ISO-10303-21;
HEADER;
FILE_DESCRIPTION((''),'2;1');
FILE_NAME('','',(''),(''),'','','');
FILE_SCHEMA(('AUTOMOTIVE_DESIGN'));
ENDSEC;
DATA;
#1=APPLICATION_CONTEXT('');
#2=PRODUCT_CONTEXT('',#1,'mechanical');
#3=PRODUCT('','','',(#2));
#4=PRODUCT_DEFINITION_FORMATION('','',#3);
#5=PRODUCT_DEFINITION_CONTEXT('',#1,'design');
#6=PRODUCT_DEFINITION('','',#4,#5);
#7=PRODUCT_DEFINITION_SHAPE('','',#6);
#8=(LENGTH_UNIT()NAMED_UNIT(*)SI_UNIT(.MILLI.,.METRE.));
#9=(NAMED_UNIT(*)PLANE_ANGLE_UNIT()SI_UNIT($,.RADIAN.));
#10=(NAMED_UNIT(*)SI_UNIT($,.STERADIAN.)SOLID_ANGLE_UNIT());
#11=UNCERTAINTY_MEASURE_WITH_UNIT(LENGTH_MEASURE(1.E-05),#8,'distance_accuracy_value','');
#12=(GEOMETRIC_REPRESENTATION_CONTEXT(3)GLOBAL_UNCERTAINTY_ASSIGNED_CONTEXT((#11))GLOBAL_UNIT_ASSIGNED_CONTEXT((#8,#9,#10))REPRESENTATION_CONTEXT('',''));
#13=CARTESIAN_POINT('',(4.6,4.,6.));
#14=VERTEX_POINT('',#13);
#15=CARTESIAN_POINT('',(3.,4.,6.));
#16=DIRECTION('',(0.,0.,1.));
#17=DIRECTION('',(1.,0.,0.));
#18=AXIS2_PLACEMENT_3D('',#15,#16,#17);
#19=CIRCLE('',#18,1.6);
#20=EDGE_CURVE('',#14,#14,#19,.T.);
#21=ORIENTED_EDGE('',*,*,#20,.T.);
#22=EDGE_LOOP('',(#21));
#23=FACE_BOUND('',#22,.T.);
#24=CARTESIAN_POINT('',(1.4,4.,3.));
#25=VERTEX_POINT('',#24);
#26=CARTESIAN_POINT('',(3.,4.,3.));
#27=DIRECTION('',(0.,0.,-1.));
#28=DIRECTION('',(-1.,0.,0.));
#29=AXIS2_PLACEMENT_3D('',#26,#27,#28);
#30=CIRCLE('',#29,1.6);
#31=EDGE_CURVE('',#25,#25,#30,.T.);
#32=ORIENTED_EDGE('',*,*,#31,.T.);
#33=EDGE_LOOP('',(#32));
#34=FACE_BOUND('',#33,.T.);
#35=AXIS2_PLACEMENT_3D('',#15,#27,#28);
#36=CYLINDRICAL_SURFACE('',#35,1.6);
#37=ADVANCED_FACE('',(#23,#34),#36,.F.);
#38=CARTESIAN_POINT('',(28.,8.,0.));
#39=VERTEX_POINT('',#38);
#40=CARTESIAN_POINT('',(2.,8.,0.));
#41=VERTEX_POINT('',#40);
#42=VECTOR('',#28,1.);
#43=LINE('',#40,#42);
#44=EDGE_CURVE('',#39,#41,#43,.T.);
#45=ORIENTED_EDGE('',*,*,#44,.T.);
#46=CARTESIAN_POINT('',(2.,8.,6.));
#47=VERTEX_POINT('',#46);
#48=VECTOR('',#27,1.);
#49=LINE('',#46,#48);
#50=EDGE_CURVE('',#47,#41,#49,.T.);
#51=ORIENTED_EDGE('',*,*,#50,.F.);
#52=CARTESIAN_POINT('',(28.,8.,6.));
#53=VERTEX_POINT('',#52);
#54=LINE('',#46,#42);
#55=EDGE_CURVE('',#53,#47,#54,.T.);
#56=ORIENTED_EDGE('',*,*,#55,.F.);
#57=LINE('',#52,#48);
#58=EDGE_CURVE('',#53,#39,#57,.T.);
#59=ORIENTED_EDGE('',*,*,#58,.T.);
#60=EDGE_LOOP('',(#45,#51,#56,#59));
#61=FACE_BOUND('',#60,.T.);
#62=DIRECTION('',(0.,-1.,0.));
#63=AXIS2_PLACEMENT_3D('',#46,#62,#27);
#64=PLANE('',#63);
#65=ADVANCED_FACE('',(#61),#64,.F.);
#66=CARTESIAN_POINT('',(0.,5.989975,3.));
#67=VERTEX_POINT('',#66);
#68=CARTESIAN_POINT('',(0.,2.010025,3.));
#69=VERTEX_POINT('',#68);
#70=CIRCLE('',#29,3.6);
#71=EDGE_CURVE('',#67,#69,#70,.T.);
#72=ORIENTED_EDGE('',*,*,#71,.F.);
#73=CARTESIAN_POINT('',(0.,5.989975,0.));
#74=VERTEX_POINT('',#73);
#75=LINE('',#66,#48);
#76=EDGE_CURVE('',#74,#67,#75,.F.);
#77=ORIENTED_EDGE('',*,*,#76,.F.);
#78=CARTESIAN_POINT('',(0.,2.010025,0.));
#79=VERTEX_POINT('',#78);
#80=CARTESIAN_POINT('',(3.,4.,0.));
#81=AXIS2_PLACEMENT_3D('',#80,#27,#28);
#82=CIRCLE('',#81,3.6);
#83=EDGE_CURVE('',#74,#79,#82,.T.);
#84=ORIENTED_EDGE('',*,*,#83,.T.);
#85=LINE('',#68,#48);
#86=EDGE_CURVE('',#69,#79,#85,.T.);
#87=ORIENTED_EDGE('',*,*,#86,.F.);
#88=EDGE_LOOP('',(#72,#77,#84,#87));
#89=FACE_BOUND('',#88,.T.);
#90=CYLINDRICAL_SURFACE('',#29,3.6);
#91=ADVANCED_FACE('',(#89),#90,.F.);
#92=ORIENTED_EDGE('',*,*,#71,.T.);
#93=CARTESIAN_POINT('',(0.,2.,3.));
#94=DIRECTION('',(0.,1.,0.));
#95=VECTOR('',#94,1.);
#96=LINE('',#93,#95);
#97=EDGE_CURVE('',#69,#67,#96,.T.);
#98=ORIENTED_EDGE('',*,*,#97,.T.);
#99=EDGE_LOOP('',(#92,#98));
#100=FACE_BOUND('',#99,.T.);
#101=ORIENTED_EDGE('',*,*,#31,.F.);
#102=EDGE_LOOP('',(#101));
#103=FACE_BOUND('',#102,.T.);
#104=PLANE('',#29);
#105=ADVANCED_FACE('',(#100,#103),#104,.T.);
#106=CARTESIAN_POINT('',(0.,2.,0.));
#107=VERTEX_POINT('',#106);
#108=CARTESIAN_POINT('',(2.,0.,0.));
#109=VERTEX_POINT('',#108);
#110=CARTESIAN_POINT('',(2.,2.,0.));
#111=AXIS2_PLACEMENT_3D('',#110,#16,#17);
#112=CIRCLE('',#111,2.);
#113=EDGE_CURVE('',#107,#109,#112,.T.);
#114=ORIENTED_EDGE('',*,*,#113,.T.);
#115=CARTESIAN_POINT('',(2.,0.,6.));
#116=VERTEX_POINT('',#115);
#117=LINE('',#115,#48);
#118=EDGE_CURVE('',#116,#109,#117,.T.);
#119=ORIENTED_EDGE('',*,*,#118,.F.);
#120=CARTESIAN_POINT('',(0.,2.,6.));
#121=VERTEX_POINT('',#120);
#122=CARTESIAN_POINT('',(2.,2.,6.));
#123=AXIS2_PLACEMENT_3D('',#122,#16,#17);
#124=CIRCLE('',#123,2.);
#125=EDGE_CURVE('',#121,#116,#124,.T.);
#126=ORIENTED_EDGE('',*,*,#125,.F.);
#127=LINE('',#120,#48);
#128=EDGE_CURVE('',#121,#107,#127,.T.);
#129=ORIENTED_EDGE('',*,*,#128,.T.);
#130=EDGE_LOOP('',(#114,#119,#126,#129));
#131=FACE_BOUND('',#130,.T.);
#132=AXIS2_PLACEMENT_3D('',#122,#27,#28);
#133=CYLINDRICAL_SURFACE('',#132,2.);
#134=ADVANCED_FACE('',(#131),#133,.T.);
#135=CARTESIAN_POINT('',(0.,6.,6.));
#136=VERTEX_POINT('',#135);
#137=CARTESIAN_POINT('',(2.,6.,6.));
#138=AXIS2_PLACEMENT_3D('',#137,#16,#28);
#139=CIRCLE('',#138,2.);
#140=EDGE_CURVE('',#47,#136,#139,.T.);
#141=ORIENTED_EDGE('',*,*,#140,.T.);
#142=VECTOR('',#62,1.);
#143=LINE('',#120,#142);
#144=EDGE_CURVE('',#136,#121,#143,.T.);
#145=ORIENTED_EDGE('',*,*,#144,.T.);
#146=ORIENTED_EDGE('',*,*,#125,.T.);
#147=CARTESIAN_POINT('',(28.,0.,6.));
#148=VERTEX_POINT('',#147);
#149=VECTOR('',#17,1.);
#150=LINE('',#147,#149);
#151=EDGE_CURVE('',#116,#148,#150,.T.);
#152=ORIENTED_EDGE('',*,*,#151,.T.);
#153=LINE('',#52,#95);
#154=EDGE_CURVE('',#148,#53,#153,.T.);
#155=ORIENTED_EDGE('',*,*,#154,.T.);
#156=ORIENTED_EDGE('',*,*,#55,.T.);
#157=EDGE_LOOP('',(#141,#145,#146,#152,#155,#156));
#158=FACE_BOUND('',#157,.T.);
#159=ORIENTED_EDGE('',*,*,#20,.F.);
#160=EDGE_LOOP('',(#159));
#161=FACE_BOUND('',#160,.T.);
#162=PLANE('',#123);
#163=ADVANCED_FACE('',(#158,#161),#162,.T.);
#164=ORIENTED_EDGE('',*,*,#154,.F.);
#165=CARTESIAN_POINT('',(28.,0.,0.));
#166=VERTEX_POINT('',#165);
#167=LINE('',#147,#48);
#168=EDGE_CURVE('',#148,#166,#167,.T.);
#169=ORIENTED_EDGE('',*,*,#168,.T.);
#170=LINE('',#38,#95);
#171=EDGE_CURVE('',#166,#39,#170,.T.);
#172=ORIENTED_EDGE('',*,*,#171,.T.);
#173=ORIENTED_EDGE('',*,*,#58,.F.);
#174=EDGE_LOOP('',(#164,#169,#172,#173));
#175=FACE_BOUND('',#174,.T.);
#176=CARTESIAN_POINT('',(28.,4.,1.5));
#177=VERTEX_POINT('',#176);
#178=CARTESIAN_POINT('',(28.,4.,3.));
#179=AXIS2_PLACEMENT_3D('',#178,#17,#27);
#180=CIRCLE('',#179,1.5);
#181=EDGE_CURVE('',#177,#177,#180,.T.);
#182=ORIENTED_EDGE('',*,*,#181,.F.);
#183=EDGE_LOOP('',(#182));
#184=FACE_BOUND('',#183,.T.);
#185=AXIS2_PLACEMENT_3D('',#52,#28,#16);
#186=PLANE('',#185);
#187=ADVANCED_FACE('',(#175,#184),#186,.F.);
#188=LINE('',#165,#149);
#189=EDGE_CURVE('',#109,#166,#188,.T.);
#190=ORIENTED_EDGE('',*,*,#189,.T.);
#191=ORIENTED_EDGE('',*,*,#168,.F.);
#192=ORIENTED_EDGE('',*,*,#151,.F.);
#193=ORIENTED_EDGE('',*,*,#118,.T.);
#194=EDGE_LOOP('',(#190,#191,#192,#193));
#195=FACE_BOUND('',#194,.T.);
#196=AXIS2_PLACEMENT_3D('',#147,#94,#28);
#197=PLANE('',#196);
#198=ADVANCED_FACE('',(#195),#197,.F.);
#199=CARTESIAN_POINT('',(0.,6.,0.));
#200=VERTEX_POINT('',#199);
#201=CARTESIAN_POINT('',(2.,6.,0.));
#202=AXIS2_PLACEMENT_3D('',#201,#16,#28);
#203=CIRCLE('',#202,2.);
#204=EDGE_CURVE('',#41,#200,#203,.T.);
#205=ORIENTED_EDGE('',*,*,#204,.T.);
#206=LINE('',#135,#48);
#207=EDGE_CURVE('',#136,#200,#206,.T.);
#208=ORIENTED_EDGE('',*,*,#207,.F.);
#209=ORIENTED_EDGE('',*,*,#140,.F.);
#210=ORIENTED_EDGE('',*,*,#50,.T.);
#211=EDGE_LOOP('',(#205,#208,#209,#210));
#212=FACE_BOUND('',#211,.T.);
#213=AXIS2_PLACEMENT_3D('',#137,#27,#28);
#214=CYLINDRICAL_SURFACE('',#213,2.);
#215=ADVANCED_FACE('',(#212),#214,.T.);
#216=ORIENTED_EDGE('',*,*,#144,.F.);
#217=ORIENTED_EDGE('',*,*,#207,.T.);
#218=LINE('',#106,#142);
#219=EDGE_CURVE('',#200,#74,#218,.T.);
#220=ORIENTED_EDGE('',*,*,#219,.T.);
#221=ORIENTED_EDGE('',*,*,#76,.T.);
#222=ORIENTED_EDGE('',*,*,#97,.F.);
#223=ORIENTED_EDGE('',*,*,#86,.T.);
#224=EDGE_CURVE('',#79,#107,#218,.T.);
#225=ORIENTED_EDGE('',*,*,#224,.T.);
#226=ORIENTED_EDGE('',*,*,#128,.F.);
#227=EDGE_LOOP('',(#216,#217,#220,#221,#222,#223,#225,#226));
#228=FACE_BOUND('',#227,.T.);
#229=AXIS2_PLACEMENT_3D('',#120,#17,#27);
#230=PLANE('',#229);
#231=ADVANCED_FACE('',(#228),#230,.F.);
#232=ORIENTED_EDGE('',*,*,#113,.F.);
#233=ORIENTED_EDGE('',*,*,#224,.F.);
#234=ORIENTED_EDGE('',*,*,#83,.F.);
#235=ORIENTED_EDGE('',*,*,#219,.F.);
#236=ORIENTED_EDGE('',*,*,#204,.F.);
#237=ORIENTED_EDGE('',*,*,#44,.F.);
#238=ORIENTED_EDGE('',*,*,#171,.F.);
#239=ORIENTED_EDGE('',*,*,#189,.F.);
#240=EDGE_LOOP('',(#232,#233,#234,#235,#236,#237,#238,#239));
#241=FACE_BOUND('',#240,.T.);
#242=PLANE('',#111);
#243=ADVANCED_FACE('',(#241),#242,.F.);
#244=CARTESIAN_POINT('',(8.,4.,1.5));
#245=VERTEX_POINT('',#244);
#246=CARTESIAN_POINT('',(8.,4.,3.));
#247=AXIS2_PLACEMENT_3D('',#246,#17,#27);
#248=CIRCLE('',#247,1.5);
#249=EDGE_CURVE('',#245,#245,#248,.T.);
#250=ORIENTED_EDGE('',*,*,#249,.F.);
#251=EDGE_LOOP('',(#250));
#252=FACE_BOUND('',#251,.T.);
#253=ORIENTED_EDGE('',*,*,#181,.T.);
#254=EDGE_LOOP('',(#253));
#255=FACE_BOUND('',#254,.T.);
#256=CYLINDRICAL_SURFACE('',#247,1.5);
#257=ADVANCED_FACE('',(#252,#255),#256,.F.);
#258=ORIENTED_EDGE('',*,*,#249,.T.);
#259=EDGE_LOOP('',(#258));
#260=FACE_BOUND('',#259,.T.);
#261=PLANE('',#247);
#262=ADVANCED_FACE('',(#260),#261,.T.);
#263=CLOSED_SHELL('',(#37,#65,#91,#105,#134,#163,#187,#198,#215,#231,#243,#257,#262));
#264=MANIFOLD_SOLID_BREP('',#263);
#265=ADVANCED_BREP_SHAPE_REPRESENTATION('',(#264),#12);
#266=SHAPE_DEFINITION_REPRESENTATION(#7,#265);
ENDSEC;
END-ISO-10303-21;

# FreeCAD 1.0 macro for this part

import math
import FreeCAD as App
import Part
import Sketcher
from FreeCAD import Vector

doc = App.newDocument("Part")
body = doc.addObject("PartDesign::Body", "Body")

sketch1 = body.newObject("Sketcher::SketchObject", "Sketch")
sketch1.AttachmentSupport = (doc.getObject("XY_Plane"), [""])
sketch1.MapMode = "FlatFace"
sketch1.addGeometry([
    Part.LineSegment(Vector(0, 6, 0), Vector(0, 2, 0)),
    Part.ArcOfCircle(Part.Circle(Vector(2, 2, 0), Vector(0, 0, 1), 2), math.radians(-180), math.radians(-90)),
    Part.LineSegment(Vector(2, 0, 0), Vector(28, 0, 0)),
    Part.LineSegment(Vector(28, 0, 0), Vector(28, 8, 0)),
    Part.LineSegment(Vector(28, 8, 0), Vector(2, 8, 0)),
    Part.ArcOfCircle(Part.Circle(Vector(2, 6, 0), Vector(0, 0, 1), 2), math.radians(90), math.radians(180)),
    Part.Circle(Vector(3, 4, 0), Vector(0, 0, 1), 1.6),
], False)
sketch1.addConstraint([
    Sketcher.Constraint("Tangent", 0, 2, 1, 1),
    Sketcher.Constraint("Tangent", 1, 2, 2, 1),
    Sketcher.Constraint("Coincident", 2, 2, 3, 1),
    Sketcher.Constraint("Coincident", 3, 2, 4, 1),
    Sketcher.Constraint("Tangent", 4, 2, 5, 1),
    Sketcher.Constraint("Tangent", 5, 2, 0, 1),
    Sketcher.Constraint("Vertical", 0),
    Sketcher.Constraint("Horizontal", 2),
    Sketcher.Constraint("Vertical", 3),
    Sketcher.Constraint("Horizontal", 4),
    Sketcher.Constraint("Equal", 1, 5),
    Sketcher.Constraint("PointOnObject", 0, 2, -2),
    Sketcher.Constraint("PointOnObject", 1, 2, -1),
    Sketcher.Constraint("Radius", 1, 2.0),
    Sketcher.Constraint("Diameter", 6, 3.2),
    Sketcher.Constraint("DistanceX", 2, 1, 2, 2, 26.0),
    Sketcher.Constraint("DistanceY", 0, 2, 0, 1, 4.0),
    Sketcher.Constraint("DistanceX", -1, 1, 6, 3, 3.0),
    Sketcher.Constraint("DistanceY", -1, 1, 6, 3, 4.0),
])
pad1 = body.newObject("PartDesign::Pad", "Pad")
pad1.Profile = sketch1
pad1.Length = 6

sketch2 = body.newObject("Sketcher::SketchObject", "Sketch001")
sketch2.AttachmentSupport = (doc.getObject("YZ_Plane"), [""])
sketch2.MapMode = "FlatFace"
sketch2.AttachmentOffset = App.Placement(Vector(0, 0, 28), App.Rotation())
sketch2.addGeometry(Part.Circle(Vector(4, 3, 0), Vector(0, 0, 1), 1.5), False)
sketch2.addConstraint([
    Sketcher.Constraint("Diameter", 0, 3.0),
    Sketcher.Constraint("DistanceX", -1, 1, 0, 3, 4.0),
    Sketcher.Constraint("DistanceY", -1, 1, 0, 3, 3.0),
])
pocket1 = body.newObject("PartDesign::Pocket", "Pocket")
pocket1.Profile = sketch2
pocket1.Length = 20

sketch3 = body.newObject("Sketcher::SketchObject", "Sketch002")
sketch3.AttachmentSupport = (doc.getObject("XY_Plane"), [""])
sketch3.MapMode = "FlatFace"
sketch3.addGeometry(Part.Circle(Vector(3, 4, 0), Vector(0, 0, 1), 3.6), False)
sketch3.addConstraint([
    Sketcher.Constraint("Diameter", 0, 7.2),
    Sketcher.Constraint("DistanceX", -1, 1, 0, 3, 3.0),
    Sketcher.Constraint("DistanceY", -1, 1, 0, 3, 4.0),
])
pocket2 = body.newObject("PartDesign::Pocket", "Pocket001")
pocket2.Profile = sketch3
pocket2.Length = 3
pocket2.Reversed = True

doc.recompute()
